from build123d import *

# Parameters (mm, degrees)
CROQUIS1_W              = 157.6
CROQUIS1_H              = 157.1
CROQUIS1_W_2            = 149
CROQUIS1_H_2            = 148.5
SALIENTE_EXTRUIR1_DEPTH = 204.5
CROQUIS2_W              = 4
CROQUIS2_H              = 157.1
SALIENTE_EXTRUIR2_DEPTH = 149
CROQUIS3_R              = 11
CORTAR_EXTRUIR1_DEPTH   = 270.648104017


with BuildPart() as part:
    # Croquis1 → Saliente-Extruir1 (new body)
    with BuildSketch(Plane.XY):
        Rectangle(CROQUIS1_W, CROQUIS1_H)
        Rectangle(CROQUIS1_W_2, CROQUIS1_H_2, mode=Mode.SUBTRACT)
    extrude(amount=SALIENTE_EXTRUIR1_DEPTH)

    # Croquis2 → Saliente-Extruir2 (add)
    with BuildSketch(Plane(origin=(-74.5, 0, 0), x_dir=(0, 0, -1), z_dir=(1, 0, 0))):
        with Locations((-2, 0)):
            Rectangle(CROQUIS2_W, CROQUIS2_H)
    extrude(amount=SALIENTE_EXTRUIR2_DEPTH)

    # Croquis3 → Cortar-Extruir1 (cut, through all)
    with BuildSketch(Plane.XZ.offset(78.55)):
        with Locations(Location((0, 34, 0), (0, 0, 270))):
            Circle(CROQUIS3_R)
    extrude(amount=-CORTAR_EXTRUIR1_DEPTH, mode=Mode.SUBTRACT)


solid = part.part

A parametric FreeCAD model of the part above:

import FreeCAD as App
import Part
import Sketcher

doc = App.newDocument("Part")
body = doc.addObject("PartDesign::Body", "Body")

sketch1 = body.newObject("Sketcher::SketchObject", "Sketch")
sketch1.AttachmentSupport = (doc.getObject("XY_Plane"), [""])
sketch1.MapMode = "FlatFace"
sketch1.addGeometry(Part.LineSegment(App.Vector(-79, 79, 0), App.Vector(-79, -79, 0)), False)
sketch1.addGeometry(Part.LineSegment(App.Vector(-79, -79, 0), App.Vector(79, -79, 0)), False)
sketch1.addGeometry(Part.LineSegment(App.Vector(79, -79, 0), App.Vector(79, 79, 0)), False)
sketch1.addGeometry(Part.LineSegment(App.Vector(79, 79, 0), App.Vector(-79, 79, 0)), False)
sketch1.addGeometry(Part.LineSegment(App.Vector(74, -74, 0), App.Vector(-74, -74, 0)), False)
sketch1.addGeometry(Part.LineSegment(App.Vector(-74, -74, 0), App.Vector(-74, 74, 0)), False)
sketch1.addGeometry(Part.LineSegment(App.Vector(-74, 74, 0), App.Vector(74, 74, 0)), False)
sketch1.addGeometry(Part.LineSegment(App.Vector(74, 74, 0), App.Vector(74, -74, 0)), False)
sketch1.addConstraint(Sketcher.Constraint("Coincident", 0, 2, 1, 1))
sketch1.addConstraint(Sketcher.Constraint("Coincident", 1, 2, 2, 1))
sketch1.addConstraint(Sketcher.Constraint("Coincident", 2, 2, 3, 1))
sketch1.addConstraint(Sketcher.Constraint("Coincident", 3, 2, 0, 1))
sketch1.addConstraint(Sketcher.Constraint("Coincident", 4, 2, 5, 1))
sketch1.addConstraint(Sketcher.Constraint("Coincident", 5, 2, 6, 1))
sketch1.addConstraint(Sketcher.Constraint("Coincident", 6, 2, 7, 1))
sketch1.addConstraint(Sketcher.Constraint("Coincident", 7, 2, 4, 1))
sketch1.addConstraint(Sketcher.Constraint("Vertical", 0))
sketch1.addConstraint(Sketcher.Constraint("Horizontal", 1))
sketch1.addConstraint(Sketcher.Constraint("Vertical", 2))
sketch1.addConstraint(Sketcher.Constraint("Horizontal", 3))
sketch1.addConstraint(Sketcher.Constraint("Horizontal", 4))
sketch1.addConstraint(Sketcher.Constraint("Vertical", 5))
sketch1.addConstraint(Sketcher.Constraint("Horizontal", 6))
sketch1.addConstraint(Sketcher.Constraint("Vertical", 7))
sketch1.addConstraint(Sketcher.Constraint("Symmetric", 0, 2, 2, 2, -1, 1))
sketch1.addConstraint(Sketcher.Constraint("Symmetric", 4, 2, 6, 2, -1, 1))
sketch1.addConstraint(Sketcher.Constraint("DistanceX", 4, 2, 4, 1, 149.0))
sketch1.addConstraint(Sketcher.Constraint("DistanceX", 1, 1, 1, 2, 157.6))
sketch1.addConstraint(Sketcher.Constraint("DistanceY", 0, 2, 0, 1, 157.1))
sketch1.addConstraint(Sketcher.Constraint("DistanceY", 5, 1, 5, 2, 148.5))
pad1 = body.newObject("PartDesign::Pad", "Pad")
pad1.Profile = sketch1
pad1.Length = 204.5

sketch2 = body.newObject("Sketcher::SketchObject", "Sketch001")
sketch2.AttachmentSupport = (doc.getObject("YZ_Plane"), [""])
sketch2.MapMode = "FlatFace"
sketch2.AttachmentOffset = App.Placement(App.Vector(0, 0, -74.5), App.Rotation())
sketch2.addGeometry(Part.LineSegment(App.Vector(78.5, 4, 0), App.Vector(-78.5, 4, 0)), False)
sketch2.addGeometry(Part.LineSegment(App.Vector(-78.5, 4, 0), App.Vector(-78.5, 0, 0)), False)
sketch2.addGeometry(Part.LineSegment(App.Vector(-78.5, 0, 0), App.Vector(78.5, 0, 0)), False)
sketch2.addGeometry(Part.LineSegment(App.Vector(78.5, 0, 0), App.Vector(78.5, 4, 0)), False)
sketch2.addConstraint(Sketcher.Constraint("Coincident", 0, 2, 1, 1))
sketch2.addConstraint(Sketcher.Constraint("Coincident", 1, 2, 2, 1))
sketch2.addConstraint(Sketcher.Constraint("Coincident", 2, 2, 3, 1))
sketch2.addConstraint(Sketcher.Constraint("Coincident", 3, 2, 0, 1))
sketch2.addConstraint(Sketcher.Constraint("Horizontal", 0))
sketch2.addConstraint(Sketcher.Constraint("Vertical", 1))
sketch2.addConstraint(Sketcher.Constraint("Horizontal", 2))
sketch2.addConstraint(Sketcher.Constraint("Vertical", 3))
sketch2.addConstraint(Sketcher.Constraint("Symmetric", 1, 2, 2, 2, -1, 1))
sketch2.addConstraint(Sketcher.Constraint("DistanceY", 1, 2, 1, 1, 4.0))
sketch2.addConstraint(Sketcher.Constraint("DistanceX", 0, 2, 0, 1, 157.1))
pad2 = body.newObject("PartDesign::Pad", "Pad001")
pad2.Profile = sketch2
pad2.Length = 149

sketch3 = body.newObject("Sketcher::SketchObject", "Sketch002")
sketch3.AttachmentSupport = (doc.getObject("XZ_Plane"), [""])
sketch3.MapMode = "FlatFace"
sketch3.AttachmentOffset = App.Placement(App.Vector(0, 0, 78.55), App.Rotation())
sketch3.addGeometry(Part.Circle(App.Vector(0, 34, 0), App.Vector(0, 0, 1), 11), False)
sketch3.addConstraint(Sketcher.Constraint("PointOnObject", 0, 3, -2))
sketch3.addConstraint(Sketcher.Constraint("Diameter", 0, 22.0))
sketch3.addConstraint(Sketcher.Constraint("DistanceY", -1, 1, 0, 3, 34.0))
pocket1 = body.newObject("PartDesign::Pocket", "Pocket")
pocket1.Profile = sketch3
pocket1.Type = "ThroughAll"

doc.recompute()
